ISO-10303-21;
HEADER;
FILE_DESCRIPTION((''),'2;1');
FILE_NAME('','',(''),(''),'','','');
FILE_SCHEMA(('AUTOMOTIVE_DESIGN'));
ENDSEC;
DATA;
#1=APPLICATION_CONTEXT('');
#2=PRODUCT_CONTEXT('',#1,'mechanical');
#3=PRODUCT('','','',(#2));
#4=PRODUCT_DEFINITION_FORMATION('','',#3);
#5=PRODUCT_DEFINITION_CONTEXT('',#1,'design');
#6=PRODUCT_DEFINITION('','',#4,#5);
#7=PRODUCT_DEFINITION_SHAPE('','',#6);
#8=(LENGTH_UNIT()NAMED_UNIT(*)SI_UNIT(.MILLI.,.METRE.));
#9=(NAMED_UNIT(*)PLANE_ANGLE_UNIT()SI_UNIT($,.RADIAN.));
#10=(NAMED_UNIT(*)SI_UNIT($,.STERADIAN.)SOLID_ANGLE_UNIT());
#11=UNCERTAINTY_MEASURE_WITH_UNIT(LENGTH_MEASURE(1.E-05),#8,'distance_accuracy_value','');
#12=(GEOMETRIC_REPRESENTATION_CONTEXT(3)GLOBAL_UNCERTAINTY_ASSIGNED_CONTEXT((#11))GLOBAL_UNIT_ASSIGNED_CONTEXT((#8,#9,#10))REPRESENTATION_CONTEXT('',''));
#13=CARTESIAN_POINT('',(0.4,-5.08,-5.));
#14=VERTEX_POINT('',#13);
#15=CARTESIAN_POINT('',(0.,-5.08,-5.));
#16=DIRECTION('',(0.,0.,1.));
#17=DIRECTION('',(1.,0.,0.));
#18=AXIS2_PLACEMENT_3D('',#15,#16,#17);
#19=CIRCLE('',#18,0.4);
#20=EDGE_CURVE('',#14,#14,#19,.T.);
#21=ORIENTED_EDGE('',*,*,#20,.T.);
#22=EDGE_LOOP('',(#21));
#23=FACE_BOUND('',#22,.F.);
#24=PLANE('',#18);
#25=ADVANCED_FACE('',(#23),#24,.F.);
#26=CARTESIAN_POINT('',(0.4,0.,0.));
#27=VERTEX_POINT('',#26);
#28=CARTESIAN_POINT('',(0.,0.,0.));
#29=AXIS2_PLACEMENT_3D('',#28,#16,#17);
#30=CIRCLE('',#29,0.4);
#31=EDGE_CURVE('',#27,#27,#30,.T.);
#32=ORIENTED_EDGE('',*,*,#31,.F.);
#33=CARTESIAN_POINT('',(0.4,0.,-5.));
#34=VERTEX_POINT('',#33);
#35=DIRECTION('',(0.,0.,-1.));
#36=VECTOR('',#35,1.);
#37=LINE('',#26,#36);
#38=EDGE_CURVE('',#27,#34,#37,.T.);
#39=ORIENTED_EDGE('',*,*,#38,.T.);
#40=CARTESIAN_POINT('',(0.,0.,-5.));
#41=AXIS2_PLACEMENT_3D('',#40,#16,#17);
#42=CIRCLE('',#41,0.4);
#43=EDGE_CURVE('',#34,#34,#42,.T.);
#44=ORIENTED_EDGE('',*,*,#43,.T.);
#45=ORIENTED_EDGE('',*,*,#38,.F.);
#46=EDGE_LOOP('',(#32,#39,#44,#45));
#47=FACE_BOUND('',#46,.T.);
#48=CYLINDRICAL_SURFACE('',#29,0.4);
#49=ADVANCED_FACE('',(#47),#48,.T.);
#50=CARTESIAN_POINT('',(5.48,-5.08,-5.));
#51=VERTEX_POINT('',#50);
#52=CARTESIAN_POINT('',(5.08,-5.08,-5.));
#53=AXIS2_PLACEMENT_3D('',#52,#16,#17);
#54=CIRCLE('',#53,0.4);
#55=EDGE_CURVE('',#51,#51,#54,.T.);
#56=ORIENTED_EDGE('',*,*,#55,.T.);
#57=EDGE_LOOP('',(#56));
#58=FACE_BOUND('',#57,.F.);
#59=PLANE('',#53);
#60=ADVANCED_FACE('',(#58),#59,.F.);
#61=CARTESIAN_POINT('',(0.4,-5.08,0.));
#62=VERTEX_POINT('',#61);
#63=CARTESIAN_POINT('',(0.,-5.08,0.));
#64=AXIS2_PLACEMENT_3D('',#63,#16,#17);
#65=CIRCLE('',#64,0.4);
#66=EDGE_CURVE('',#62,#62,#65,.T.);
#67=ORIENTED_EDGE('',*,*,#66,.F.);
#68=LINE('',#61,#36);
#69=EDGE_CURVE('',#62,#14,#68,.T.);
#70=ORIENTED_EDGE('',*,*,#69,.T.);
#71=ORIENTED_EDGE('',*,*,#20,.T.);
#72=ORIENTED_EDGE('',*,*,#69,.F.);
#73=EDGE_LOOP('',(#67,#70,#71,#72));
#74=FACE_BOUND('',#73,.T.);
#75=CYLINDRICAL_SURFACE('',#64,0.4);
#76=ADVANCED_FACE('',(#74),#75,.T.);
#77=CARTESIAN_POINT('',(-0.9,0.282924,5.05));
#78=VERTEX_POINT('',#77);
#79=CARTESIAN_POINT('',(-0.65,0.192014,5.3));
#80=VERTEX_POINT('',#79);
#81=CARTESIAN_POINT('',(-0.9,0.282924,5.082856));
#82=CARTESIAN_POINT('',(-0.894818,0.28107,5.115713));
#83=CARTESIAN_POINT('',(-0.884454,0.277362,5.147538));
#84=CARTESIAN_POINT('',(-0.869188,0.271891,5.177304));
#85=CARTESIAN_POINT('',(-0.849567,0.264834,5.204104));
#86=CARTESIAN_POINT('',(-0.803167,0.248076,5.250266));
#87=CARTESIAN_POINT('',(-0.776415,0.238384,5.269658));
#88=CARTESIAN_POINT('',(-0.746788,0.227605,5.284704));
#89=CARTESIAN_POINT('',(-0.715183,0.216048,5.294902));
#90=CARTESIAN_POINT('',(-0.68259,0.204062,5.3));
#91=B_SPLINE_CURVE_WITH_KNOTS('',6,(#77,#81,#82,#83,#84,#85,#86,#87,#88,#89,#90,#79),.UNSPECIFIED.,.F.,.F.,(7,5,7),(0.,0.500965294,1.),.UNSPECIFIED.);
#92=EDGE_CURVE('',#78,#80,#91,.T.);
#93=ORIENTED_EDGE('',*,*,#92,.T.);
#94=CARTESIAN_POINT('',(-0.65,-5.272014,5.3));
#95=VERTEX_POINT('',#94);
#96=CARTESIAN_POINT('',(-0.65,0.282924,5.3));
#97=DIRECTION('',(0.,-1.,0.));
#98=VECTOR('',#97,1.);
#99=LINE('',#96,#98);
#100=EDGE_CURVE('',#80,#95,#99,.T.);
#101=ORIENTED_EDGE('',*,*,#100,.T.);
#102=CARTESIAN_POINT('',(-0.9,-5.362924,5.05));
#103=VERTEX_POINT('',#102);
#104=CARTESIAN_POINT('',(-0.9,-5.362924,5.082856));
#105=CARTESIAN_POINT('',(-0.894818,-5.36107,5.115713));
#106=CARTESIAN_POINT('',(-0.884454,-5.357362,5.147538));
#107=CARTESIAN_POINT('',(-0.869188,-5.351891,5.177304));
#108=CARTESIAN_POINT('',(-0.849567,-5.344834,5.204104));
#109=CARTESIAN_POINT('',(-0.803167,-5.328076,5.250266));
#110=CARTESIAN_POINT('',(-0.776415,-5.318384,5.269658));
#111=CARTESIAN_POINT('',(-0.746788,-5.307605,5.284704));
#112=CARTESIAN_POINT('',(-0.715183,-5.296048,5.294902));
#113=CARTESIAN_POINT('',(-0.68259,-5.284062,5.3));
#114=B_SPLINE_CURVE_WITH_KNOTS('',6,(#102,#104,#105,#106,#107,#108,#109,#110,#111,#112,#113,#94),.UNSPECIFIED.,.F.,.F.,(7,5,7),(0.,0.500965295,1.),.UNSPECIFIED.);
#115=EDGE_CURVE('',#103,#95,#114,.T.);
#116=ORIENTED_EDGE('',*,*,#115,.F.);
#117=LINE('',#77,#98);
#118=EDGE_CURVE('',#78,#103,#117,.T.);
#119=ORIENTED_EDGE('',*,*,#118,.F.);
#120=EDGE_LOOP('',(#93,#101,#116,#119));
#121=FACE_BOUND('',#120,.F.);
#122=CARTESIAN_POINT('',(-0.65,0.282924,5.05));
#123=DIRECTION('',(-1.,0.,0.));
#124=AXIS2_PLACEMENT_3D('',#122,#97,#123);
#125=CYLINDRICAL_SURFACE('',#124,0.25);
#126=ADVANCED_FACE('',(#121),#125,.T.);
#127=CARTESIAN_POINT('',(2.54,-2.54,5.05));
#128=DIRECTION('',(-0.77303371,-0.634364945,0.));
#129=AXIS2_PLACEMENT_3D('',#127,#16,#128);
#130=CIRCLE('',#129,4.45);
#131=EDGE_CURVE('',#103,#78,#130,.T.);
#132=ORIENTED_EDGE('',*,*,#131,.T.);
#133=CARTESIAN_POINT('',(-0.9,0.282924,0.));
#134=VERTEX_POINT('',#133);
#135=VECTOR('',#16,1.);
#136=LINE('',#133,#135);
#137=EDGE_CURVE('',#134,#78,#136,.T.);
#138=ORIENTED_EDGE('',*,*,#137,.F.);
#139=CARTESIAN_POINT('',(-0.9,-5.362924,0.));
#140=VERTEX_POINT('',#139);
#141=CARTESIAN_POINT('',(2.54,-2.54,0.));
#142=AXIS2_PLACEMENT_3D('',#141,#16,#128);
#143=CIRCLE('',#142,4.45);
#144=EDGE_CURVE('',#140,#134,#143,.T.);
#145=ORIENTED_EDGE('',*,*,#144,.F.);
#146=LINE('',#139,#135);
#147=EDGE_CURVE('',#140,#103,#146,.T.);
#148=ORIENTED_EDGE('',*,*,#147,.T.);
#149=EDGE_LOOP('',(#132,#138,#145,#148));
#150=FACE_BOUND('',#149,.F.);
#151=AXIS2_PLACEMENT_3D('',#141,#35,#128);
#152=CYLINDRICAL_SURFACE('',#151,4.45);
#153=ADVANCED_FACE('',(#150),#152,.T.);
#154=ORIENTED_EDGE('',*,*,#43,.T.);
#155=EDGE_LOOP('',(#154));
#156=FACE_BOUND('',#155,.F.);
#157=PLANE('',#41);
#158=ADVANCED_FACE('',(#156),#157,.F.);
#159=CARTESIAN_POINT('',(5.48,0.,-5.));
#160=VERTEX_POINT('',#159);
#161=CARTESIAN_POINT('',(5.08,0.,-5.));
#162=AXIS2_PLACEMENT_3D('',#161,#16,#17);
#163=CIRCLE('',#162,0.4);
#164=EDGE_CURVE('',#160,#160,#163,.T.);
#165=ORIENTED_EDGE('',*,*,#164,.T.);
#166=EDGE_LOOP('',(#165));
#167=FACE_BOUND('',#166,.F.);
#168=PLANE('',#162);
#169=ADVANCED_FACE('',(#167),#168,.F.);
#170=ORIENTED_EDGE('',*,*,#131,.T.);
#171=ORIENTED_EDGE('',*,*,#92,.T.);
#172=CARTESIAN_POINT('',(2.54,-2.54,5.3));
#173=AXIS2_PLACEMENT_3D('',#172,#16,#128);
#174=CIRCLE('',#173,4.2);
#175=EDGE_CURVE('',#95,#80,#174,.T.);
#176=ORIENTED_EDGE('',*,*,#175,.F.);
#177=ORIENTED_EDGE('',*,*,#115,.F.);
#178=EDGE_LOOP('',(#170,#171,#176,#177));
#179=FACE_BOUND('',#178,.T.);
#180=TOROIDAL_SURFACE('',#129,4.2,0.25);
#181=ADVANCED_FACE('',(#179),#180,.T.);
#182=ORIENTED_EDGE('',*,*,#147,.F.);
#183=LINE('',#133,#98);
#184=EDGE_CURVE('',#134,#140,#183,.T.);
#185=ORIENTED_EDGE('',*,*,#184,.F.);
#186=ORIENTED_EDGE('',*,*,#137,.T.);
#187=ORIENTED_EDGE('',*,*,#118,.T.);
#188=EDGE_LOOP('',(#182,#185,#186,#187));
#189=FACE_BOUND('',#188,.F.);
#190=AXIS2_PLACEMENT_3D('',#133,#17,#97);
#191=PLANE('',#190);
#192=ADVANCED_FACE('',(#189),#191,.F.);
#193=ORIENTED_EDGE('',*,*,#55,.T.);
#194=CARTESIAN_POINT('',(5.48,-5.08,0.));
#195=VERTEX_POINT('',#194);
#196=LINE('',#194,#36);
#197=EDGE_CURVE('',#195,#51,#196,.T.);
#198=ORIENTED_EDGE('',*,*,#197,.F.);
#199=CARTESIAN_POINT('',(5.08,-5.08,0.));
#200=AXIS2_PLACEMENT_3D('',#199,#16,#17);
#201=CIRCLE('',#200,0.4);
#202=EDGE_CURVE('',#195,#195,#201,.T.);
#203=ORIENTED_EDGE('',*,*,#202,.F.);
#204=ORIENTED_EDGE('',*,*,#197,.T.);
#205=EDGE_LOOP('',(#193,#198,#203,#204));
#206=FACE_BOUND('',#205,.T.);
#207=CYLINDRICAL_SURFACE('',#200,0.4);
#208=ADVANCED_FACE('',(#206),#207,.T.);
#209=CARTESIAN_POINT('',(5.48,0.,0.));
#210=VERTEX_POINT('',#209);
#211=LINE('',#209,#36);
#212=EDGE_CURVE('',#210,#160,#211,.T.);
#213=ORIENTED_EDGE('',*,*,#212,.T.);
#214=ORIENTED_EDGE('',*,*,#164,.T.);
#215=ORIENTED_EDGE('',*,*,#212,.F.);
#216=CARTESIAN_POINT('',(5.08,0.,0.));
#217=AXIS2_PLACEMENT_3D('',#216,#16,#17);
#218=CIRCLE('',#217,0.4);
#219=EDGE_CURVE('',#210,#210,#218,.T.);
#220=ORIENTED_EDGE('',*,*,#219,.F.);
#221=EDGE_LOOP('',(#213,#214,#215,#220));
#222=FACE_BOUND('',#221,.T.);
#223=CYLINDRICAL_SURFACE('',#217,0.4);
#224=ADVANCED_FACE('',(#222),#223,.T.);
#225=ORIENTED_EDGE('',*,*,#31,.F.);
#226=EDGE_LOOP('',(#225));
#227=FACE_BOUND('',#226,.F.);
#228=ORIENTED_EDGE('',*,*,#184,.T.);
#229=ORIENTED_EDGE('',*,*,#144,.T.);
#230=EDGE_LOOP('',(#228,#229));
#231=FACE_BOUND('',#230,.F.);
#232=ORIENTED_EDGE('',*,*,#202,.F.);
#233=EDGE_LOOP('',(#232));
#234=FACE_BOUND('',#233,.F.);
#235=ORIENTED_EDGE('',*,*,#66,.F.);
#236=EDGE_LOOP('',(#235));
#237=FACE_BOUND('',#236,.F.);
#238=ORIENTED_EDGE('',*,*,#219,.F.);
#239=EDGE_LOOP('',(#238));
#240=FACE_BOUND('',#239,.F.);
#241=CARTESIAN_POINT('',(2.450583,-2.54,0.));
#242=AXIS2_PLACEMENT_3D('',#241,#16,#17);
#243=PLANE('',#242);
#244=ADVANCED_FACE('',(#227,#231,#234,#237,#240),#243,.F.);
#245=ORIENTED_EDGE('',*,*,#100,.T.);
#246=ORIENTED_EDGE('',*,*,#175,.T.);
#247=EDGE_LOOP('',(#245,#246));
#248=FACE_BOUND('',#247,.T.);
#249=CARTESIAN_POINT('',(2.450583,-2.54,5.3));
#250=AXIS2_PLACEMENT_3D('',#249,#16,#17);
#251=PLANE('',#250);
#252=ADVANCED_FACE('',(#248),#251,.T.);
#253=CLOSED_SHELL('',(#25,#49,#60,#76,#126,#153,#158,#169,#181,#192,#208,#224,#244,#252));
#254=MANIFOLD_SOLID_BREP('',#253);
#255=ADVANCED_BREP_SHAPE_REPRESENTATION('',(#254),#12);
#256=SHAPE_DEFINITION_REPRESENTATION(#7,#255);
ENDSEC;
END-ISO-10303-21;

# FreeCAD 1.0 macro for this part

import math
import FreeCAD as App
import Part
import Sketcher
Q = App.Units.Quantity


def edges_at(feature, points):
    """Names of the edges that pass closest to the given points."""
    edges = feature.Shape.Edges
    near = lambda p: min(range(len(edges)), key=lambda i: edges[i].distToShape(Part.Vertex(*p))[0])
    return sorted({f"Edge{near(p) + 1}" for p in points})

doc = App.newDocument("Part")
body = doc.addObject("PartDesign::Body", "Body")

# Sketch on XY plane
sketch1 = body.newObject("Sketcher::SketchObject", "Sketch")
sketch1.AttachmentSupport = (doc.getObject("XY_Plane"), [""])
sketch1.MapMode = "FlatFace"
sketch1.addGeometry([
    Part.LineSegment(App.Vector(-0.9, 0.3, 0), App.Vector(-0.9, -5.4, 0)),
    Part.ArcOfCircle(Part.Circle(App.Vector(2.5, -2.5, 0), App.Vector(0, 0, 1), 4.4), math.radians(-141), math.radians(141)),
], False)
sketch1.addConstraint([
    Sketcher.Constraint("Coincident", 0, 1, 1, 2),
    Sketcher.Constraint("Coincident", 1, 1, 0, 2),
    Sketcher.Constraint("Vertical", 0),
    Sketcher.Constraint("Radius", 1, Q("4.45 mm")),
    Sketcher.Constraint("DistanceX", 0, 1, -1, 1, Q("0.9 mm")),
    Sketcher.Constraint("DistanceX", -1, 1, 1, 3, Q("2.54 mm")),
    Sketcher.Constraint("DistanceY", 1, 3, -1, 1, Q("2.54 mm")),
])
pad1 = body.newObject("PartDesign::Pad", "Pad")
pad1.Profile = sketch1
pad1.Length = 5.3
doc.recompute()

fillet = body.newObject("PartDesign::Fillet", "Fillet")
fillet.Base = (pad1, edges_at(pad1, [(-0.9, -2.54, 5.3), (6.99, -2.54, 5.3)]))
fillet.Radius = 0.25
body2 = doc.addObject("PartDesign::Body", "Body001")
body2.AllowCompound = True

# Sketch on XY plane
sketch2 = body2.newObject("Sketcher::SketchObject", "Sketch001")
sketch2.AttachmentSupport = (doc.getObject("XY_Plane001"), [""])
sketch2.MapMode = "FlatFace"
sketch2.addGeometry([
    Part.Circle(App.Vector(0, 0, 0), App.Vector(0, 0, 1), 0.4),
    Part.Circle(App.Vector(5.08, 0, 0), App.Vector(0, 0, 1), 0.4),
    Part.Circle(App.Vector(5.08, -5.08, 0), App.Vector(0, 0, 1), 0.4),
    Part.Circle(App.Vector(0, -5.08, 0), App.Vector(0, 0, 1), 0.4),
], False)
sketch2.addConstraint([
    Sketcher.Constraint("Coincident", 0, 3, -1, 1),
    Sketcher.Constraint("Equal", 0, 1),
    Sketcher.Constraint("Equal", 1, 2),
    Sketcher.Constraint("Equal", 2, 3),
    Sketcher.Constraint("PointOnObject", 1, 3, -1),
    Sketcher.Constraint("PointOnObject", 3, 3, -2),
    Sketcher.Constraint("Horizontal", 2, 3, 3, 3),
    Sketcher.Constraint("Vertical", 1, 3, 2, 3),
    Sketcher.Constraint("Diameter", 0, Q("0.8 mm")),
    Sketcher.Constraint("DistanceX", -1, 1, 1, 3, Q("5.08 mm")),
    Sketcher.Constraint("DistanceY", 2, 3, -1, 1, Q("5.08 mm")),
])
pad2 = body2.newObject("PartDesign::Pad", "Pad001")
pad2.Profile = sketch2
pad2.Length = 5
pad2.Reversed = True
doc.recompute()

boolean = body2.newObject("PartDesign::Boolean", "Boolean")
boolean.Type = "Fuse"
boolean.addObjects([body])

doc.recompute()
